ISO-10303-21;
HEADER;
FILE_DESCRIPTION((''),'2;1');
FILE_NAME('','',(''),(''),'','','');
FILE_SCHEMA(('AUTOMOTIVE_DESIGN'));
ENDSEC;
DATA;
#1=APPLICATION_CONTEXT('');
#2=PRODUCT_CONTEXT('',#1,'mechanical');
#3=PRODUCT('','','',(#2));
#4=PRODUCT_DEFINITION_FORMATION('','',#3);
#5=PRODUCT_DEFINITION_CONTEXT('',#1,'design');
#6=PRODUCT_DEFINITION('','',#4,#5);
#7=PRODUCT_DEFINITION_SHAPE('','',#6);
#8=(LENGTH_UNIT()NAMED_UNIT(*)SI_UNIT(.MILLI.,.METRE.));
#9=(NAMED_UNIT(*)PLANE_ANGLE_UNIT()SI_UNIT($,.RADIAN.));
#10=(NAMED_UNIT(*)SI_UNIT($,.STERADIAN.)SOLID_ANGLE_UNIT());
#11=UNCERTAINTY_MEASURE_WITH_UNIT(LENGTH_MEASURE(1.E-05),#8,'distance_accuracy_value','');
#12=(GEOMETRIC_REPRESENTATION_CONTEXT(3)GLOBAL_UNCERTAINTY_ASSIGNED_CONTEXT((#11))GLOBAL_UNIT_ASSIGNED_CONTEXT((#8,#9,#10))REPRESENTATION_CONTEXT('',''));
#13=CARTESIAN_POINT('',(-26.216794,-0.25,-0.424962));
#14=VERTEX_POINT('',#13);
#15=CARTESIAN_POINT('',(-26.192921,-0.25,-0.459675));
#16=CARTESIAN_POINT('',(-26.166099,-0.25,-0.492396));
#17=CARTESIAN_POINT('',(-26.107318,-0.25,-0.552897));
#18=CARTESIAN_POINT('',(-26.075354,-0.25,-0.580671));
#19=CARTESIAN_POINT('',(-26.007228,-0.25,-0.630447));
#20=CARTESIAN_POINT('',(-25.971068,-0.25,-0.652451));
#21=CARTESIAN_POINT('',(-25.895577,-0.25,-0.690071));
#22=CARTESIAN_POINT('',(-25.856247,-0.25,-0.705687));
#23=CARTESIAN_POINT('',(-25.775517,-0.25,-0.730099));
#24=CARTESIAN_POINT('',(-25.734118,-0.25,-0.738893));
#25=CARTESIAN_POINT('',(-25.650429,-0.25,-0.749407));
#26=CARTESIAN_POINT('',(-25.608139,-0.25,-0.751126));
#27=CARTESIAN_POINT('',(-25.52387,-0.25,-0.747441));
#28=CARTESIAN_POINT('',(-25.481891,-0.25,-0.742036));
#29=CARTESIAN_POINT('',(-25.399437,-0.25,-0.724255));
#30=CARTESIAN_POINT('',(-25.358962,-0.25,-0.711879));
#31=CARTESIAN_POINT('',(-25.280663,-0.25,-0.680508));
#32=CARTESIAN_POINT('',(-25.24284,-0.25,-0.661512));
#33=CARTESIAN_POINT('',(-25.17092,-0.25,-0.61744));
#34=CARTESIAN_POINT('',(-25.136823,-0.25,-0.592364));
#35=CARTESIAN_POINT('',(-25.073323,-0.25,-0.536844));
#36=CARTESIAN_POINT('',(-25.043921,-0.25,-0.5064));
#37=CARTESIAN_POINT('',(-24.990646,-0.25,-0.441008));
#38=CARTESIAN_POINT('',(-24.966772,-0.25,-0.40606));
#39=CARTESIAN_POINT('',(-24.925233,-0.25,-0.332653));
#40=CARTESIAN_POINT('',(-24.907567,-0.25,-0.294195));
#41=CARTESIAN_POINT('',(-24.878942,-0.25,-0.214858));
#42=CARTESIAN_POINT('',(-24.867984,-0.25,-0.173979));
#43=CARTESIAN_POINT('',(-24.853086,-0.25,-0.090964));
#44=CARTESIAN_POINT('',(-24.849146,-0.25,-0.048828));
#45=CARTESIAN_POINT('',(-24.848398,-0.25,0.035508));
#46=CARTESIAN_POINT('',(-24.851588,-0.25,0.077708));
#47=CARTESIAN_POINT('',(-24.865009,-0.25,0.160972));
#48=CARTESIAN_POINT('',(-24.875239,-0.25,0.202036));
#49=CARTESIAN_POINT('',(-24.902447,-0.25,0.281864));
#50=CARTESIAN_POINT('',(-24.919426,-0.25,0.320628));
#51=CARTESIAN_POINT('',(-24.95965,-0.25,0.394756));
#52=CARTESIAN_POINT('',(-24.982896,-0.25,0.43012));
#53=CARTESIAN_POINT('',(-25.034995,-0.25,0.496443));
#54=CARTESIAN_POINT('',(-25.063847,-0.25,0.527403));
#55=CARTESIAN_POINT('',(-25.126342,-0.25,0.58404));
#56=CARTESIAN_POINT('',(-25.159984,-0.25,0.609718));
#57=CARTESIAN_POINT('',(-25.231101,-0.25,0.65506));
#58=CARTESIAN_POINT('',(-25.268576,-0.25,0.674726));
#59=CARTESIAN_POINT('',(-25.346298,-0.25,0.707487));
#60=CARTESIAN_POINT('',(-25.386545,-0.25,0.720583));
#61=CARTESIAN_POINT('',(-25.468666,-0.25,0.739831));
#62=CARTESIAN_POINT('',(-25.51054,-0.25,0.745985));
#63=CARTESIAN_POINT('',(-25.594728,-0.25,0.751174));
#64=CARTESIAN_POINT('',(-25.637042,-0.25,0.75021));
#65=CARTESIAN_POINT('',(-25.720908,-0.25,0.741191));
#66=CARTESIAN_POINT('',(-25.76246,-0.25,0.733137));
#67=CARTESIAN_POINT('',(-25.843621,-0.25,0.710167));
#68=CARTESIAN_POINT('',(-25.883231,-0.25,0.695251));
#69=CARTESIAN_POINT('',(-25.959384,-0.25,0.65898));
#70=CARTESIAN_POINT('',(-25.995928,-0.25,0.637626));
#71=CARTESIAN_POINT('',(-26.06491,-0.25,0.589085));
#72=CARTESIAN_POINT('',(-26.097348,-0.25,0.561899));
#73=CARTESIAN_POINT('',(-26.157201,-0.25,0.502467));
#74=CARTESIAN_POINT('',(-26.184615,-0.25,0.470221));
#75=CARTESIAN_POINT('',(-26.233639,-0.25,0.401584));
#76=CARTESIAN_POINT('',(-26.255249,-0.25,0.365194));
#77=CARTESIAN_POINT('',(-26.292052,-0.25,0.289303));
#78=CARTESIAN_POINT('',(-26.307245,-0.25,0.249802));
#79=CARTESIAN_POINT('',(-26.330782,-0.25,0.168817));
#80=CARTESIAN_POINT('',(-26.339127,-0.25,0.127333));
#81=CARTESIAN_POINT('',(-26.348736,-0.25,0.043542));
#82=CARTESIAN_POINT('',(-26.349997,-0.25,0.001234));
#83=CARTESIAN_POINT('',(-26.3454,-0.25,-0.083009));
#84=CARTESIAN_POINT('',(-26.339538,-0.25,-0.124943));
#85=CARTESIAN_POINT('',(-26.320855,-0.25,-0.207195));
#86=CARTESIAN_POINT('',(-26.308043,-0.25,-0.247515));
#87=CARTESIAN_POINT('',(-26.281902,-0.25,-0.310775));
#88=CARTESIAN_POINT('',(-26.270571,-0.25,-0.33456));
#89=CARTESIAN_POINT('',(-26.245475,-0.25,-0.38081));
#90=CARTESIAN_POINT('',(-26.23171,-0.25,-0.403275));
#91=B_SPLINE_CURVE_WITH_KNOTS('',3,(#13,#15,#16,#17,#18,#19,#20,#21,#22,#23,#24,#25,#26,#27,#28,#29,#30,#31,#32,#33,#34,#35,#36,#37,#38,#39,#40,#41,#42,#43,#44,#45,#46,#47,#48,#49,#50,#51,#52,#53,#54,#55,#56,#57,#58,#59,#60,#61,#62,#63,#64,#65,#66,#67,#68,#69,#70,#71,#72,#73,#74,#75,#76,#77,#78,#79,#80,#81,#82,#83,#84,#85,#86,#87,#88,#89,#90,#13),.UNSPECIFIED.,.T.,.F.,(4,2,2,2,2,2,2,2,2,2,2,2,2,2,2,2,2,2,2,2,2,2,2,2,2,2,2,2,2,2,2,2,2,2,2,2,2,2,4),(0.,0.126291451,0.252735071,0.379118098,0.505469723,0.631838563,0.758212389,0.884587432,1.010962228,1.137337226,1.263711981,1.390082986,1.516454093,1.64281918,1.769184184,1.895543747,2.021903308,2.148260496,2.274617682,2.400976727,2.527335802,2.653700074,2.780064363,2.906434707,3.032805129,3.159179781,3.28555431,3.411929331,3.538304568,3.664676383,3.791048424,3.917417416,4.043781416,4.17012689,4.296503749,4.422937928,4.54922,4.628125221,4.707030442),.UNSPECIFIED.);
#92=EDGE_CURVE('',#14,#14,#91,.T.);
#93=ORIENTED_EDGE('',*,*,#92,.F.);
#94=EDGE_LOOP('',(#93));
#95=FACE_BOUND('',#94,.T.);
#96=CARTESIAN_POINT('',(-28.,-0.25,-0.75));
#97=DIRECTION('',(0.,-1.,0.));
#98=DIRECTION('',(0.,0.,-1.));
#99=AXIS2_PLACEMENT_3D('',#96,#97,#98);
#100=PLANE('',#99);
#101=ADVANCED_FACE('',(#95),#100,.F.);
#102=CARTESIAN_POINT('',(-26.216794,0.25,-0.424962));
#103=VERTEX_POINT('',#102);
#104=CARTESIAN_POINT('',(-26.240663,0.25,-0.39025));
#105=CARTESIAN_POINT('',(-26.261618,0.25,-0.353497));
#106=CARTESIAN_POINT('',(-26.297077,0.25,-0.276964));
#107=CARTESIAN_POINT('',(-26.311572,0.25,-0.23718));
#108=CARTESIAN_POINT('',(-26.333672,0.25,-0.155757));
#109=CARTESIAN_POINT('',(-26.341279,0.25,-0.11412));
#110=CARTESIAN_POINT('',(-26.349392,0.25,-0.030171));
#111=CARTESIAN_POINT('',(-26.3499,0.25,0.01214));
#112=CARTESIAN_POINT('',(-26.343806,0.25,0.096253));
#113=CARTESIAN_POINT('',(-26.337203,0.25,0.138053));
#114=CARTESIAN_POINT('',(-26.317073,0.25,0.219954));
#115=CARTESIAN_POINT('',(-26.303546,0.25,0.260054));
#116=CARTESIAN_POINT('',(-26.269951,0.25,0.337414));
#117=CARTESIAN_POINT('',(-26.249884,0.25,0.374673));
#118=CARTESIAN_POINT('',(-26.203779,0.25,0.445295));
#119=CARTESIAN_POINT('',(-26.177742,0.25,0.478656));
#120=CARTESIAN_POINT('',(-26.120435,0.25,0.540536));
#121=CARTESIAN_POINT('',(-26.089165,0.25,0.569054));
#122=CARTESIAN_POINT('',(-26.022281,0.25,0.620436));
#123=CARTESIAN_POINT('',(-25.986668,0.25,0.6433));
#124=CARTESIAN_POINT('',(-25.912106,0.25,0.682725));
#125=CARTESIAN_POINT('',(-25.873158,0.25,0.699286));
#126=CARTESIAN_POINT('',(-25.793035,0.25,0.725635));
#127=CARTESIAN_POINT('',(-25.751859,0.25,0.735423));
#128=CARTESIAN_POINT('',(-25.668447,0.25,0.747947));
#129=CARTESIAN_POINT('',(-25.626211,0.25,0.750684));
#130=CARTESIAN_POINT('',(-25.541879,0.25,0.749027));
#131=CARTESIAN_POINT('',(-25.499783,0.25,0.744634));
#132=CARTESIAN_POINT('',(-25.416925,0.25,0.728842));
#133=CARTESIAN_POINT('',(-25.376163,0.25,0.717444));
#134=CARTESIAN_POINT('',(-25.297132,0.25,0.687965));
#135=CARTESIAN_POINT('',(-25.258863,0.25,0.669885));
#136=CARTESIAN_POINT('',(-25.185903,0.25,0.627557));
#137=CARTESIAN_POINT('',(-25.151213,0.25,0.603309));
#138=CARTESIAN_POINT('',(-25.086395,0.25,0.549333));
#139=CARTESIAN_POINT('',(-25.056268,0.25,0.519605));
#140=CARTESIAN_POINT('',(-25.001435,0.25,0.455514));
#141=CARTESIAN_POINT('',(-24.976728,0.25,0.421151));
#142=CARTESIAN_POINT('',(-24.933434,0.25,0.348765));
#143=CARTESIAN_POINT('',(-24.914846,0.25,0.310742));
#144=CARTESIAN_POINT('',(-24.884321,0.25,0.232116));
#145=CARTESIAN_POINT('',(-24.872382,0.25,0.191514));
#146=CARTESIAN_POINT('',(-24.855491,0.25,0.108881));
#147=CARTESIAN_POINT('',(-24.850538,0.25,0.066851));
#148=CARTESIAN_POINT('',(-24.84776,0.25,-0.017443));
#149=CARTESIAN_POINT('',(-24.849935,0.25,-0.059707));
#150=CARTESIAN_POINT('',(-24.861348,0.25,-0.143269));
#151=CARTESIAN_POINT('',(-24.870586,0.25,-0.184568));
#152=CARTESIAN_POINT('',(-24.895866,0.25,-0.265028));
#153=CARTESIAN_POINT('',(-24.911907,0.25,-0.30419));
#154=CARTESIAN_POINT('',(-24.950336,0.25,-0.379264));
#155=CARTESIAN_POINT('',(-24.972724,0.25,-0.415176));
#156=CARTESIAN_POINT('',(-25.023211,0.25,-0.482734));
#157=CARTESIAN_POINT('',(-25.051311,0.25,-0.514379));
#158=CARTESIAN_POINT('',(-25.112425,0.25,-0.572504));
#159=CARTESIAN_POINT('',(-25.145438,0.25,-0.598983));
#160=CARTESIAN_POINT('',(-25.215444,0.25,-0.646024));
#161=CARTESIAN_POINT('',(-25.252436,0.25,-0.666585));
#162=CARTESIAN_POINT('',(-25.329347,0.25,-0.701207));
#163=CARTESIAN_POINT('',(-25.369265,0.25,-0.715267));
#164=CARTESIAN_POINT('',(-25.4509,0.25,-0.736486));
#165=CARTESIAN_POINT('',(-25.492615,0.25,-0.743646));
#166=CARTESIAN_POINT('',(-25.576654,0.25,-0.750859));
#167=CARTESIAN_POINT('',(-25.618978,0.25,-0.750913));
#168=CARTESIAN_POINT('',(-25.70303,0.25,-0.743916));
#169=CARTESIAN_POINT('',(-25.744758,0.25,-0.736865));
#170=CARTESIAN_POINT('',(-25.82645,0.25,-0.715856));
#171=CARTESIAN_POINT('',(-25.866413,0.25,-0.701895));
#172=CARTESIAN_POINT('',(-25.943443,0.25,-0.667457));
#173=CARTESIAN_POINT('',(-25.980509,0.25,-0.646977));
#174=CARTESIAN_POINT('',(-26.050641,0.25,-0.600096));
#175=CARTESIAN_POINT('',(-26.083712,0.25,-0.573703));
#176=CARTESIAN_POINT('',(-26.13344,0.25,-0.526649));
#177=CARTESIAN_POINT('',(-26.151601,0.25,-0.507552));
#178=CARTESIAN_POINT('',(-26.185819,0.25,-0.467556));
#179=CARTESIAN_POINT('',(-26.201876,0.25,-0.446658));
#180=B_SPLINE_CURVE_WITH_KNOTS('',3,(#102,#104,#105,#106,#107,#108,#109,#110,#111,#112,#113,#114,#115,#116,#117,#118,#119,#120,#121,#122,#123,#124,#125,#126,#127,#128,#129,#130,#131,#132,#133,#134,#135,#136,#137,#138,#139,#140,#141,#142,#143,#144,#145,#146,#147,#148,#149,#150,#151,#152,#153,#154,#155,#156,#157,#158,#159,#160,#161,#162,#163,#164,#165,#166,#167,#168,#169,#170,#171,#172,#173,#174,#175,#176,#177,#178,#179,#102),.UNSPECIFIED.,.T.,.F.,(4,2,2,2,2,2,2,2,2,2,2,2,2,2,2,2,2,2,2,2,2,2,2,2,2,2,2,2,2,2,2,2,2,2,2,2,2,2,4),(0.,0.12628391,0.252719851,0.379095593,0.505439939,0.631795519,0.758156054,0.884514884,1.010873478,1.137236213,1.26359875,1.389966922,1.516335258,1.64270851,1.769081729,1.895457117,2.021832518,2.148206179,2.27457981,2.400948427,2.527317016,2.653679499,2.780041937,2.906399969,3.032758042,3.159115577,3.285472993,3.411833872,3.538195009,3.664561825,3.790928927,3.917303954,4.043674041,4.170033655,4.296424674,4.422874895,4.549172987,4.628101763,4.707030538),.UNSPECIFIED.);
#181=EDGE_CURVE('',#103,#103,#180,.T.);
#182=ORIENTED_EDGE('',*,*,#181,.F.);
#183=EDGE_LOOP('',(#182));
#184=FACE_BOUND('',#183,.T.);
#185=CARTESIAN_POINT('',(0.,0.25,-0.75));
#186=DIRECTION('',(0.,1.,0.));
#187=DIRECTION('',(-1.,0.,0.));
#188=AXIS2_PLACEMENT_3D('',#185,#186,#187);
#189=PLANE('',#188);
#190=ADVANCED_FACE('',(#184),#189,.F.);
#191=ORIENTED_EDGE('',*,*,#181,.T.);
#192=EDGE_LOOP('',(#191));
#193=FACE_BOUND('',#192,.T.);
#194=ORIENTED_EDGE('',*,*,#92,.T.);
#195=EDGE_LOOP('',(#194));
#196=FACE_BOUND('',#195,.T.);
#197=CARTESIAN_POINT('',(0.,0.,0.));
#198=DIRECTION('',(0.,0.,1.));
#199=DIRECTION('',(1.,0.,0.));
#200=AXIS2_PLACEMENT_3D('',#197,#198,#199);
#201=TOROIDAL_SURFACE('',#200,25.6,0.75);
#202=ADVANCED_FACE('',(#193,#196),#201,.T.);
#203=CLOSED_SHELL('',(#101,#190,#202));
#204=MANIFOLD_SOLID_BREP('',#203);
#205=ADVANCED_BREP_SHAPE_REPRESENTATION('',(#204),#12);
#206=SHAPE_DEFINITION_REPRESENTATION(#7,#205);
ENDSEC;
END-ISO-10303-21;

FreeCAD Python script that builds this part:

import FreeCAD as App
import Part
import Sketcher
from FreeCAD import Vector

doc = App.newDocument("Part")
body = doc.addObject("PartDesign::Body", "Body")

sketch1 = body.newObject("Sketcher::SketchObject", "Sketch")
sketch1.AttachmentSupport = (doc.getObject("XZ_Plane"), [""])
sketch1.MapMode = "FlatFace"
sketch1.addGeometry(Part.Circle(Vector(-25.6, 0, 0), Vector(0, 0, 1), 0.8), False)
sketch1.addConstraint([
    Sketcher.Constraint("PointOnObject", 0, 3, -1),
    Sketcher.Constraint("Diameter", 0, 1.5),
    Sketcher.Constraint("DistanceX", 0, 3, -1, 1, 25.6),
])

sketch2 = body.newObject("Sketcher::SketchObject", "Sketch001")
sketch2.AttachmentSupport = (doc.getObject("XY_Plane"), [""])
sketch2.MapMode = "FlatFace"
sketch2.addGeometry(Part.Circle(Vector(0, 0, 0), Vector(0, 0, 1), 26), False)
sketch2.addConstraint([
    Sketcher.Constraint("Coincident", 0, 3, -1, 1),
    Sketcher.Constraint("Diameter", 0, 51.2),
])
doc.recompute()

additivepipe = body.newObject("PartDesign::AdditivePipe", "AdditivePipe")
additivepipe.Profile = sketch1
additivepipe.Spine = (sketch2, ["Edge1"])

sketch3 = body.newObject("Sketcher::SketchObject", "Sketch002")
sketch3.AttachmentSupport = (doc.getObject("XY_Plane"), [""])
sketch3.MapMode = "FlatFace"
sketch3.addGeometry([
    Part.LineSegment(Vector(0, 0.2, 0), Vector(-28, 0.2, 0)),
    Part.LineSegment(Vector(-28, 0.2, 0), Vector(-28, -0.2, 0)),
    Part.LineSegment(Vector(-28, -0.2, 0), Vector(0, -0.2, 0)),
    Part.LineSegment(Vector(0, -0.2, 0), Vector(0, 0.2, 0)),
], False)
sketch3.addConstraint([
    Sketcher.Constraint("Coincident", 0, 2, 1, 1),
    Sketcher.Constraint("Coincident", 1, 2, 2, 1),
    Sketcher.Constraint("Coincident", 2, 2, 3, 1),
    Sketcher.Constraint("Coincident", 3, 2, 0, 1),
    Sketcher.Constraint("Horizontal", 0),
    Sketcher.Constraint("Vertical", 1),
    Sketcher.Constraint("Horizontal", 2),
    Sketcher.Constraint("Vertical", 3),
    Sketcher.Constraint("Symmetric", 2, 2, 3, 2, -1, 1),
    Sketcher.Constraint("DistanceX", 0, 2, 0, 1, 28.0),
    Sketcher.Constraint("DistanceY", 1, 2, 1, 1, 0.5),
])
pocket1 = body.newObject("PartDesign::Pocket", "Pocket")
pocket1.Profile = sketch3
pocket1.Type = "ThroughAll"
pocket1.Midplane = True

doc.recompute()
